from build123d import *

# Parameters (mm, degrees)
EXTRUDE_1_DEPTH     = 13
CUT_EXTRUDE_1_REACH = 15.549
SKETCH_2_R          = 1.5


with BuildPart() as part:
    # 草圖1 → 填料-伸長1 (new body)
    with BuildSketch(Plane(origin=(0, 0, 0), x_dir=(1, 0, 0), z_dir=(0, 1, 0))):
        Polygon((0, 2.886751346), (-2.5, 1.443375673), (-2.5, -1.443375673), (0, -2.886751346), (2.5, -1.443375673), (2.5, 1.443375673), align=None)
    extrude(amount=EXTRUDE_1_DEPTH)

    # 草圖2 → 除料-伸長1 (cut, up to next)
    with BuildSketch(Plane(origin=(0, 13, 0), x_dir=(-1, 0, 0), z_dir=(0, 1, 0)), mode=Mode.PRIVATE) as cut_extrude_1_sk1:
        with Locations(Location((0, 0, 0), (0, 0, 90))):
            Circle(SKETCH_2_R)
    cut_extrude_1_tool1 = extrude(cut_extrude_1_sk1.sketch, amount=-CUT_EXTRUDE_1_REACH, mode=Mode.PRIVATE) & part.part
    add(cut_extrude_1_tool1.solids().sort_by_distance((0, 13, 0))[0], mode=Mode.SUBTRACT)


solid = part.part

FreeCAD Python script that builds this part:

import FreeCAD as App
import Part
import Sketcher
from FreeCAD import Vector
Q = App.Units.Quantity

doc = App.newDocument("Part")
body = doc.addObject("PartDesign::Body", "Body")

# Sketch on XZ plane
sketch1 = body.newObject("Sketcher::SketchObject", "Sketch")
sketch1.AttachmentSupport = (doc.getObject("XZ_Plane"), [""])
sketch1.MapMode = "FlatFace"
sketch1.addGeometry(Part.LineSegment(Vector(0, -2.886751, 0), Vector(-2.5, -1.443376, 0)), False)
sketch1.addGeometry(Part.LineSegment(Vector(-2.5, -1.443376, 0), Vector(-2.5, 1.443376, 0)), False)
sketch1.addGeometry(Part.LineSegment(Vector(-2.5, 1.443376, 0), Vector(0, 2.886751, 0)), False)
sketch1.addGeometry(Part.LineSegment(Vector(0, 2.886751, 0), Vector(2.5, 1.443376, 0)), False)
sketch1.addGeometry(Part.LineSegment(Vector(2.5, 1.443376, 0), Vector(2.5, -1.443376, 0)), False)
sketch1.addGeometry(Part.LineSegment(Vector(2.5, -1.443376, 0), Vector(0, -2.886751, 0)), False)
sketch1.addConstraint(Sketcher.Constraint("Coincident", 0, 2, 1, 1))
sketch1.addConstraint(Sketcher.Constraint("Coincident", 1, 2, 2, 1))
sketch1.addConstraint(Sketcher.Constraint("Coincident", 2, 2, 3, 1))
sketch1.addConstraint(Sketcher.Constraint("Coincident", 3, 2, 4, 1))
sketch1.addConstraint(Sketcher.Constraint("Coincident", 4, 2, 5, 1))
sketch1.addConstraint(Sketcher.Constraint("Coincident", 5, 2, 0, 1))
sketch1.addConstraint(Sketcher.Constraint("Vertical", 1))
sketch1.addConstraint(Sketcher.Constraint("Vertical", 4))
sketch1.addConstraint(Sketcher.Constraint("Symmetric", 0, 2, 3, 2, -1, 1))
sketch1.addConstraint(Sketcher.Constraint("Symmetric", 2, 2, 5, 2, -1, 1))
sketch1.addConstraint(Sketcher.Constraint("PointOnObject", 2, 2, -2))
sketch1.addConstraint(Sketcher.Constraint("Parallel", 2, 5))
sketch1.addConstraint(Sketcher.Constraint("Horizontal", 1, 2, 3, 2))
sketch1.addConstraint(Sketcher.Constraint("Angle", 0, Q("150 deg")))
sketch1.addConstraint(Sketcher.Constraint("DistanceX", 1, 2, 3, 2, Q("5 mm")))
sketch1.addConstraint(Sketcher.Constraint("DistanceY", 1, 1, 1, 2, Q("2.886751 mm")))
pad1 = body.newObject("PartDesign::Pad", "Pad")
pad1.Profile = sketch1
pad1.Length = 13
pad1.Reversed = True

# Sketch on XZ plane
sketch2 = body.newObject("Sketcher::SketchObject", "Sketch001")
sketch2.AttachmentSupport = (doc.getObject("XZ_Plane"), [""])
sketch2.MapMode = "FlatFace"
sketch2.AttachmentOffset = App.Placement(Vector(0, 0, -13), App.Rotation())
sketch2.addGeometry(Part.Circle(Vector(0, 0, 0), Vector(0, 0, 1), 1.5), False)
sketch2.addConstraint(Sketcher.Constraint("Coincident", 0, 3, -1, 1))
sketch2.addConstraint(Sketcher.Constraint("Diameter", 0, Q("3 mm")))
pocket1 = body.newObject("PartDesign::Pocket", "Pocket")
pocket1.Profile = sketch2
pocket1.Type = "UpToFirst"
pocket1.Reversed = True

doc.recompute()
